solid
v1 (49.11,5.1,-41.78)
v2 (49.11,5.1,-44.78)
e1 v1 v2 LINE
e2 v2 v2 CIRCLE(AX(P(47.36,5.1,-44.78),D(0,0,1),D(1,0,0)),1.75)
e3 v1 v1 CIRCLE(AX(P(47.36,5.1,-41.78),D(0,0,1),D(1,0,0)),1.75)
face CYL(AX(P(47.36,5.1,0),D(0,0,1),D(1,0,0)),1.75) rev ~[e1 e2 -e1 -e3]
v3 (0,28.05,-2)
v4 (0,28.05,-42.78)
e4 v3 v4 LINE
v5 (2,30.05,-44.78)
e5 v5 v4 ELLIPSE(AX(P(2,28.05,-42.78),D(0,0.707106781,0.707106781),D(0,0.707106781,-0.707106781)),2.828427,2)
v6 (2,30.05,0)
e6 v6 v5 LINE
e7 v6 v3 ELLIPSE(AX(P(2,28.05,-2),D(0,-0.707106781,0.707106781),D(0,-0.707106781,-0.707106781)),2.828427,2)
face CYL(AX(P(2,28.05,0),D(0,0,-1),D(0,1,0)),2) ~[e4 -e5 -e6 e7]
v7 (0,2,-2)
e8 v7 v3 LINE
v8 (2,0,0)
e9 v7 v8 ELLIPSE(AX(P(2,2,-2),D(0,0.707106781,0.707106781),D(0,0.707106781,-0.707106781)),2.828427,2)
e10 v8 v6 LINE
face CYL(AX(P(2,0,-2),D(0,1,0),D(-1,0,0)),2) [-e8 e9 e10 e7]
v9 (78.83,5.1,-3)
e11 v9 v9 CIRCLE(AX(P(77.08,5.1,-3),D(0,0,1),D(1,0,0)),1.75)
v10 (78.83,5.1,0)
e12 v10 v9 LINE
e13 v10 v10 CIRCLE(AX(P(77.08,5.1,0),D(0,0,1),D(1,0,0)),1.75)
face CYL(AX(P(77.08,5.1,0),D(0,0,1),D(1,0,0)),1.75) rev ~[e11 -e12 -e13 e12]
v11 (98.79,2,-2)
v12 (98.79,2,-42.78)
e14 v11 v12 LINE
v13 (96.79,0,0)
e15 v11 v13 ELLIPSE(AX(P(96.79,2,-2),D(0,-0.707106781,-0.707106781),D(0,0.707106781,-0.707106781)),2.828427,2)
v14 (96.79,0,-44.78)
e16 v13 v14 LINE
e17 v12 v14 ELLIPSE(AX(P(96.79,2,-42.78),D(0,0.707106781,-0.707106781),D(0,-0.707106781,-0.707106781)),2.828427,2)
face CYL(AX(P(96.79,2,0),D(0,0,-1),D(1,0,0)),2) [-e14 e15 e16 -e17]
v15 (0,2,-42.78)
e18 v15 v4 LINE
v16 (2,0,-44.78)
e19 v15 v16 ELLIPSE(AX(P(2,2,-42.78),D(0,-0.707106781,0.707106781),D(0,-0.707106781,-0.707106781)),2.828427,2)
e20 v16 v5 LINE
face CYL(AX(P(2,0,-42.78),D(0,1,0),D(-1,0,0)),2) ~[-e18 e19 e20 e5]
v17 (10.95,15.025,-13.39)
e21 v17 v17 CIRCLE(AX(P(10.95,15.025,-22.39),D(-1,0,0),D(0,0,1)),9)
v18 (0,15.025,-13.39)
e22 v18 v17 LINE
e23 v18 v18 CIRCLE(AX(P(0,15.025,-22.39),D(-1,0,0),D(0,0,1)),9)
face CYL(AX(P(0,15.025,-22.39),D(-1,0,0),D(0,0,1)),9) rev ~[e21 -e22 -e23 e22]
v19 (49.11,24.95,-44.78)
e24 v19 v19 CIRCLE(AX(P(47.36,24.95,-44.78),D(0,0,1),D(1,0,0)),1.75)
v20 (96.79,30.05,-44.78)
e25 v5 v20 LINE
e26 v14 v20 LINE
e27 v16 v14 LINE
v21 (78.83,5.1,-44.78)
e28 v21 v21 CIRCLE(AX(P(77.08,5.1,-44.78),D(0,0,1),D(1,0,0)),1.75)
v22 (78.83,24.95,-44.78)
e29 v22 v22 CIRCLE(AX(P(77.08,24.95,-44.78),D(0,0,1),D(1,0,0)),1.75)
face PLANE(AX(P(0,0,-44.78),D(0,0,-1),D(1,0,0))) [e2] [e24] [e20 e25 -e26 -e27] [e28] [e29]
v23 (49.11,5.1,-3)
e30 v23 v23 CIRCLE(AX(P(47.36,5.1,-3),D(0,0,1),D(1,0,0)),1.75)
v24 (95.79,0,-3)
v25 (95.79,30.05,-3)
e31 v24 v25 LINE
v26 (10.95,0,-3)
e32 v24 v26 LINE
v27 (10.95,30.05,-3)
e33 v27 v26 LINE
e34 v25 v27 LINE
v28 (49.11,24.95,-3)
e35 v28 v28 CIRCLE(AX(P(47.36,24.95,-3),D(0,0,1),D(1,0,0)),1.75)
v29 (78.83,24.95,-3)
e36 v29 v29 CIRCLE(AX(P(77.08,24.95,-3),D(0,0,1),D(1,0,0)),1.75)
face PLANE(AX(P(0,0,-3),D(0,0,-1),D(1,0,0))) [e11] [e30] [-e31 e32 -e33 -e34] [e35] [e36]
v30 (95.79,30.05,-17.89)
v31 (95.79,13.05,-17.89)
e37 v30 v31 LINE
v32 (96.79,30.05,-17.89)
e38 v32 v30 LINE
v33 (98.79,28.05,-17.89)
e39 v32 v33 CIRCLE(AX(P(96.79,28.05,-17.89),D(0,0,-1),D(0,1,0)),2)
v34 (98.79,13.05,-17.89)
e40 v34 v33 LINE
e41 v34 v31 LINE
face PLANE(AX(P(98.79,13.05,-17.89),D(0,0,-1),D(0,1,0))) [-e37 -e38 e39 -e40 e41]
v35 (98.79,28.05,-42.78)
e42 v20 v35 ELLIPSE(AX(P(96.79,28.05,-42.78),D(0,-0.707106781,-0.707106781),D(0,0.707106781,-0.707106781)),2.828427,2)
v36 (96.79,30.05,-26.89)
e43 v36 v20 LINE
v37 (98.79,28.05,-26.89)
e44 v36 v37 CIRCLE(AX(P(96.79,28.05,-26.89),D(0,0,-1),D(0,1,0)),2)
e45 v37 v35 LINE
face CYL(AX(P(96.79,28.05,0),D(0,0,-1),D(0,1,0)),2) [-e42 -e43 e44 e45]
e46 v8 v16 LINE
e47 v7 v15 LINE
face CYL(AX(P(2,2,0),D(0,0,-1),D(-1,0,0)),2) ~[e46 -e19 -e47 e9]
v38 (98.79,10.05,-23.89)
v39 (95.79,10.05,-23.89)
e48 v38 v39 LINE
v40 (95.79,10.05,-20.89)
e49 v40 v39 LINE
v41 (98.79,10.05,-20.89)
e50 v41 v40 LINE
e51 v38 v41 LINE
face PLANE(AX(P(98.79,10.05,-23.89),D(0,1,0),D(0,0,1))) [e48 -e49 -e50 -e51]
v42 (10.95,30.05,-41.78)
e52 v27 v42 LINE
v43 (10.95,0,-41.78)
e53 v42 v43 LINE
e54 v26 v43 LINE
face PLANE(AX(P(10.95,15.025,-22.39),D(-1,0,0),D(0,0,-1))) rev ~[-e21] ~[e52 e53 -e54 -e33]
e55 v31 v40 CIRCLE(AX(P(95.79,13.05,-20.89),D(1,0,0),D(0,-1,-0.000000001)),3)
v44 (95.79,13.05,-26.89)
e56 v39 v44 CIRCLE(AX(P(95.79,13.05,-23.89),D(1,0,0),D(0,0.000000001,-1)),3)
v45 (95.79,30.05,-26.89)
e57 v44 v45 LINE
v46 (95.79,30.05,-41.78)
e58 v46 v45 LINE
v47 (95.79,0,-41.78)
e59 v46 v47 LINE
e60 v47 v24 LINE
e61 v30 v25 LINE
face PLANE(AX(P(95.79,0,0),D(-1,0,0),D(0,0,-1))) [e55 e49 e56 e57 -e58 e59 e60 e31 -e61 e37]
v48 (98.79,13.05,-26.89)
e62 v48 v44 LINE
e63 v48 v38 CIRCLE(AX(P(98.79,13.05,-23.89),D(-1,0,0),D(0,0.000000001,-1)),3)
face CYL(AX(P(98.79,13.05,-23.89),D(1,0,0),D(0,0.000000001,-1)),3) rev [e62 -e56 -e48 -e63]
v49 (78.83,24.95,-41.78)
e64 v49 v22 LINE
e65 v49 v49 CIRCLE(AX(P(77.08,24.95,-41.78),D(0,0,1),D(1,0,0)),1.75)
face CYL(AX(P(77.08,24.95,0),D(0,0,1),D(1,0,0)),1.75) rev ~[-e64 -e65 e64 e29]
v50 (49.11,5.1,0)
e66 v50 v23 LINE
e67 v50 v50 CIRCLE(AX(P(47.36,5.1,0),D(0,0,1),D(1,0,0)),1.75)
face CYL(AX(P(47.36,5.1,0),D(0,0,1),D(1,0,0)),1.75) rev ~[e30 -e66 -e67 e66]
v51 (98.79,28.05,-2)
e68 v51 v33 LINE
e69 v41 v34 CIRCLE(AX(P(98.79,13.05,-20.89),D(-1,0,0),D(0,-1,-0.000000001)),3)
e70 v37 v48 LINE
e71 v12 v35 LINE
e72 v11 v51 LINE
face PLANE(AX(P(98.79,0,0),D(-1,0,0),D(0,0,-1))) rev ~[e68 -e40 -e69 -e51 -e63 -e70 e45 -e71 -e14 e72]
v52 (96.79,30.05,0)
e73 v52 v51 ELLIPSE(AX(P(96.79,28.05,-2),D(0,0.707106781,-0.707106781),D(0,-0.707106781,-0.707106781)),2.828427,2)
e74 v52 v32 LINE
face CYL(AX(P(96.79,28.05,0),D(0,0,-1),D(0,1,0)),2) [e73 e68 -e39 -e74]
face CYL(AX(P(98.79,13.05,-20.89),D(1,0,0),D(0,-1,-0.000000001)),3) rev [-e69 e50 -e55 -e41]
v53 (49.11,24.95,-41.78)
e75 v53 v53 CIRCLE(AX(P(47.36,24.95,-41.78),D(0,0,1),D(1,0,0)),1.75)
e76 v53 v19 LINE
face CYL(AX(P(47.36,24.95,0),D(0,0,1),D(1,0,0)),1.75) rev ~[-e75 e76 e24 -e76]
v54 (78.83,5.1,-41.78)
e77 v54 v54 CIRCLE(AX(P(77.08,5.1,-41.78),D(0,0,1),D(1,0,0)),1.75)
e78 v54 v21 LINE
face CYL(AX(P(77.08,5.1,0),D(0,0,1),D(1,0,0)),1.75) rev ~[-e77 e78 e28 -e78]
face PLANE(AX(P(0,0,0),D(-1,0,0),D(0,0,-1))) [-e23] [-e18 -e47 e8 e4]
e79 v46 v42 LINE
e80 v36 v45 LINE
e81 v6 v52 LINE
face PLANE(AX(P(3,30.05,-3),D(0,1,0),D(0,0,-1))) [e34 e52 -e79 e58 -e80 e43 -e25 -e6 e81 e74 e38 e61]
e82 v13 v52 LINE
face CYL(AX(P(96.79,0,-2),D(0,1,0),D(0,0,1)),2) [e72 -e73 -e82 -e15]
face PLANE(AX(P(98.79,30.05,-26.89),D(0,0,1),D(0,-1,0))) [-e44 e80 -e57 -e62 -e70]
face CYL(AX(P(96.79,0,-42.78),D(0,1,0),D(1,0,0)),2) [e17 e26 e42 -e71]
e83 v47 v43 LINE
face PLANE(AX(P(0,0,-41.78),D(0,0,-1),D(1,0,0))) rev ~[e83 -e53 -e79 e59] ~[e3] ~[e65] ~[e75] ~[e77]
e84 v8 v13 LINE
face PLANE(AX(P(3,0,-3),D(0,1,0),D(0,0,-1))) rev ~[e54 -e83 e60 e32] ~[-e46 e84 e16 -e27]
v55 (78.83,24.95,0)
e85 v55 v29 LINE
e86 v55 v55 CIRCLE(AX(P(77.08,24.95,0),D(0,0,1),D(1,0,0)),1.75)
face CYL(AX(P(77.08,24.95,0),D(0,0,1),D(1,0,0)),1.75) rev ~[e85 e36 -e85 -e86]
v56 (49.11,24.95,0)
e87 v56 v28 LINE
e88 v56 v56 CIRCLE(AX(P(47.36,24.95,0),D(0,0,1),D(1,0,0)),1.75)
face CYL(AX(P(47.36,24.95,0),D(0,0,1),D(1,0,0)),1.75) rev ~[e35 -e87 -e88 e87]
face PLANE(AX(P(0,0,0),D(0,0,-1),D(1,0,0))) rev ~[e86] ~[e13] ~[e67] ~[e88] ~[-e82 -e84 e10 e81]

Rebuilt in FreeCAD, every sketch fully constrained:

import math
import FreeCAD as App
import Part
import Sketcher
Q = App.Units.Quantity


def edges_at(feature, points):
    """Names of the edges that pass closest to the given points."""
    edges = feature.Shape.Edges
    near = lambda p: min(range(len(edges)), key=lambda i: edges[i].distToShape(Part.Vertex(*p))[0])
    return sorted({f"Edge{near(p) + 1}" for p in points})


def faces_at(feature, points):
    """Names of the faces that lie closest to the given points."""
    faces = feature.Shape.Faces
    near = lambda p: min(range(len(faces)), key=lambda i: faces[i].distToShape(Part.Vertex(*p))[0])
    return sorted({f"Face{near(p) + 1}" for p in points})

doc = App.newDocument("Part")
body = doc.addObject("PartDesign::Body", "Body")

# Sketch on XZ plane
sketch1 = doc.addObject("Sketcher::SketchObject", "Sketch")
body.addObject(sketch1)
sketch1.AttachmentSupport = (doc.XZ_Plane, [""])
sketch1.MapMode = "FlatFace"
sketch1.addGeometry([
    Part.LineSegment(App.Vector(0, -45, 0), App.Vector(0, 0, 0)),
    Part.LineSegment(App.Vector(0, 0, 0), App.Vector(99, 0, 0)),
    Part.LineSegment(App.Vector(99, 0, 0), App.Vector(99, -45, 0)),
    Part.LineSegment(App.Vector(99, -45, 0), App.Vector(0, -45, 0)),
], False)
sketch1.addConstraint([
    Sketcher.Constraint("Coincident", 0, 2, 1, 1),
    Sketcher.Constraint("Coincident", 1, 2, 2, 1),
    Sketcher.Constraint("Coincident", 2, 2, 3, 1),
    Sketcher.Constraint("Coincident", 3, 2, 0, 1),
    Sketcher.Constraint("Vertical", 0),
    Sketcher.Constraint("Horizontal", 1),
    Sketcher.Constraint("Vertical", 2),
    Sketcher.Constraint("Horizontal", 3),
    Sketcher.Constraint("Coincident", 0, 2, -1, 1),
    Sketcher.Constraint("DistanceX", 1, 1, 1, 2, Q("98.79 mm")),
    Sketcher.Constraint("DistanceY", 0, 1, 0, 2, Q("44.78 mm")),
])
pad1 = doc.addObject("PartDesign::Pad", "Pad")
body.addObject(pad1)
pad1.Profile = sketch1
pad1.Length = 30.05
pad1.Reversed = True
doc.recompute()

thickness = doc.addObject("PartDesign::Thickness", "Thickness")
body.addObject(thickness)
thickness.Base = (pad1, faces_at(pad1, [(49.395, 30.05, -22.39), (49.395, 0, -22.39)]))
thickness.Value = 3
thickness.Reversed = True
thickness.Join = "Intersection"

# Sketch on YZ plane
sketch2 = doc.addObject("Sketcher::SketchObject", "Sketch001")
body.addObject(sketch2)
sketch2.AttachmentSupport = (doc.YZ_Plane, [""])
sketch2.MapMode = "FlatFace"
sketch2.AttachmentOffset = App.Placement(App.Vector(0, 0, 3), App.Rotation())
sketch2.addGeometry([
    Part.LineSegment(App.Vector(0, -3, 0), App.Vector(30, -3, 0)),
    Part.LineSegment(App.Vector(30, -3, 0), App.Vector(30, -42, 0)),
    Part.LineSegment(App.Vector(30, -42, 0), App.Vector(0, -42, 0)),
    Part.LineSegment(App.Vector(0, -42, 0), App.Vector(0, -3, 0)),
], False)
sketch2.addConstraint([
    Sketcher.Constraint("Coincident", 0, 2, 1, 1),
    Sketcher.Constraint("Coincident", 1, 2, 2, 1),
    Sketcher.Constraint("Coincident", 2, 2, 3, 1),
    Sketcher.Constraint("Coincident", 3, 2, 0, 1),
    Sketcher.Constraint("Horizontal", 0),
    Sketcher.Constraint("Vertical", 1),
    Sketcher.Constraint("Horizontal", 2),
    Sketcher.Constraint("Vertical", 3),
    Sketcher.Constraint("PointOnObject", 2, 2, -2),
    Sketcher.Constraint("DistanceY", 0, 2, -1, 1, Q("3 mm")),
    Sketcher.Constraint("DistanceX", 0, 1, 0, 2, Q("30.05 mm")),
    Sketcher.Constraint("DistanceY", 1, 2, 1, 1, Q("38.78 mm")),
])
pad2 = doc.addObject("PartDesign::Pad", "Pad001")
body.addObject(pad2)
pad2.Profile = sketch2
pad2.Length = 7.95

# Sketch on XY plane
sketch3 = doc.addObject("Sketcher::SketchObject", "Sketch002")
body.addObject(sketch3)
sketch3.AttachmentSupport = (doc.XY_Plane, [""])
sketch3.MapMode = "FlatFace"
sketch3.addGeometry([
    Part.Circle(App.Vector(77.1, 24.9, 0), App.Vector(0, 0, 1), 1.8),
    Part.Circle(App.Vector(77.1, 5.1, 0), App.Vector(0, 0, 1), 1.8),
    Part.Circle(App.Vector(47.4, 5.1, 0), App.Vector(0, 0, 1), 1.8),
    Part.Circle(App.Vector(47.4, 24.9, 0), App.Vector(0, 0, 1), 1.8),
], False)
sketch3.addConstraint([
    Sketcher.Constraint("Equal", 0, 1),
    Sketcher.Constraint("Equal", 1, 2),
    Sketcher.Constraint("Equal", 2, 3),
    Sketcher.Constraint("Horizontal", 1, 3, 2, 3),
    Sketcher.Constraint("Horizontal", 0, 3, 3, 3),
    Sketcher.Constraint("Vertical", 0, 3, 1, 3),
    Sketcher.Constraint("Vertical", 2, 3, 3, 3),
    Sketcher.Constraint("Diameter", 0, Q("3.5 mm")),
    Sketcher.Constraint("DistanceY", -1, 1, 1, 3, Q("5.1 mm")),
    Sketcher.Constraint("DistanceX", -1, 1, 0, 3, Q("77.08 mm")),
    Sketcher.Constraint("DistanceY", -1, 1, 0, 3, Q("24.95 mm")),
    Sketcher.Constraint("DistanceX", -1, 1, 2, 3, Q("47.36 mm")),
])
pocket1 = doc.addObject("PartDesign::Pocket", "Pocket")
body.addObject(pocket1)
pocket1.Profile = sketch3
pocket1.Type = "ThroughAll"
doc.recompute()

fillet = doc.addObject("PartDesign::Fillet", "Fillet")
body.addObject(fillet)
fillet.Base = (pocket1, edges_at(pocket1, [
    (98.79, 30.05, -22.39),
    (0, 30.05, -22.39),
    (98.79, 0, -22.39),
    (0, 0, -22.39),
    (0, 15.025, -44.78),
    (98.79, 15.025, -44.78),
    (98.79, 15.025, 0),
    (0, 15.025, 0),
]))
fillet.Radius = 2

# Sketch on YZ plane
sketch4 = doc.addObject("Sketcher::SketchObject", "Sketch003")
body.addObject(sketch4)
sketch4.AttachmentSupport = (doc.YZ_Plane, [""])
sketch4.MapMode = "FlatFace"
sketch4.AttachmentOffset = App.Placement(App.Vector(0, 0, 98.79), App.Rotation())
sketch4.addGeometry([
    Part.LineSegment(App.Vector(30.1, -26.9, 0), App.Vector(30.1, -17.9, 0)),  # 0
    Part.LineSegment(App.Vector(30.1, -17.9, 0), App.Vector(13.1, -17.9, 0)),  # 1
    Part.ArcOfCircle(Part.Circle(App.Vector(13, -20.9, 0), App.Vector(0, 0, 1), 3), math.radians(90), math.radians(180)),  # 2
    Part.LineSegment(App.Vector(10.1, -20.9, 0), App.Vector(10.1, -23.9, 0)),  # 3
    Part.ArcOfCircle(Part.Circle(App.Vector(13, -23.9, 0), App.Vector(0, 0, 1), 3), math.radians(180), math.radians(270)),  # 4
    Part.LineSegment(App.Vector(13.1, -26.9, 0), App.Vector(30.1, -26.9, 0)),  # 5
], False)
sketch4.addConstraint([
    Sketcher.Constraint("Coincident", 0, 2, 1, 1),
    Sketcher.Constraint("Tangent", 1, 2, 2, 1),
    Sketcher.Constraint("Tangent", 2, 2, 3, 1),
    Sketcher.Constraint("Tangent", 3, 2, 4, 1),
    Sketcher.Constraint("Tangent", 4, 2, 5, 1),
    Sketcher.Constraint("Coincident", 5, 2, 0, 1),
    Sketcher.Constraint("Vertical", 0),
    Sketcher.Constraint("Horizontal", 1),
    Sketcher.Constraint("Vertical", 3),
    Sketcher.Constraint("Horizontal", 5),
    Sketcher.Constraint("Equal", 2, 4),
    Sketcher.Constraint("Radius", 2, Q("3 mm")),
    Sketcher.Constraint("DistanceX", 1, 2, 1, 1, Q("17 mm")),
    Sketcher.Constraint("DistanceY", 0, 1, 0, 2, Q("9 mm")),
    Sketcher.Constraint("DistanceX", -1, 1, 2, 3, Q("13.05 mm")),
    Sketcher.Constraint("DistanceY", 2, 3, -1, 1, Q("20.89 mm")),
])
pocket2 = doc.addObject("PartDesign::Pocket", "Pocket001")
body.addObject(pocket2)
pocket2.Profile = sketch4
pocket2.Length = 29.61

# Sketch on YZ plane
sketch5 = doc.addObject("Sketcher::SketchObject", "Sketch004")
body.addObject(sketch5)
sketch5.AttachmentSupport = (doc.YZ_Plane, [""])
sketch5.MapMode = "FlatFace"
sketch5.addGeometry(Part.Circle(App.Vector(15, -22, 0), App.Vector(0, 0, 1), 9), False)
sketch5.addConstraint([
    Sketcher.Constraint("Diameter", 0, Q("18 mm")),
    Sketcher.Constraint("DistanceY", 0, 3, -1, 1, Q("22.39 mm")),
    Sketcher.Constraint("DistanceX", -1, 1, 0, 3, Q("15.025 mm")),
])
pocket3 = doc.addObject("PartDesign::Pocket", "Pocket002")
body.addObject(pocket3)
pocket3.Profile = sketch5
pocket3.Length = 20
pocket3.Reversed = True

doc.recompute()
